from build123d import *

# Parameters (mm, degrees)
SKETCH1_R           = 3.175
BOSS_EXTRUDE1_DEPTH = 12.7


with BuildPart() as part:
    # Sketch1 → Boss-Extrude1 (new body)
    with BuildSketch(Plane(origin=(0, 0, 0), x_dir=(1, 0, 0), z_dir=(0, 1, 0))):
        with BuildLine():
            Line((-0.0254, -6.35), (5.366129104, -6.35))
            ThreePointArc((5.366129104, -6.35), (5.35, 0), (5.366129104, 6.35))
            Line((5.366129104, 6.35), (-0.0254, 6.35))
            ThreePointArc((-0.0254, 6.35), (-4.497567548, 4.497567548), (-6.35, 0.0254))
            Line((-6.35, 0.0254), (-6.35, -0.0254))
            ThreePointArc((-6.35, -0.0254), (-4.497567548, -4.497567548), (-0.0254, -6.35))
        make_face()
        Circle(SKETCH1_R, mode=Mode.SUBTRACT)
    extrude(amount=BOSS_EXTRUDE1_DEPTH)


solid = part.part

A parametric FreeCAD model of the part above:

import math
import FreeCAD as App
import Part
import Sketcher

V = App.Vector
Q = App.Units.Quantity

doc = App.newDocument("Part")
body = doc.addObject("PartDesign::Body", "Body")

# Sketch on XZ plane
sketch1 = doc.addObject("Sketcher::SketchObject", "Sketch")
body.addObject(sketch1)
sketch1.AttachmentSupport = (doc.XZ_Plane, [""])
sketch1.MapMode = "FlatFace"
sketch1.addGeometry([
    Part.LineSegment(V(-0.0254, 6.35, 0), V(5.366129, 6.35, 0)),  # 0
    Part.ArcOfCircle(Part.Circle(V(1255.350005, 0, 0), V(0, 0, 1), 1250.000005), math.radians(179.708936), math.radians(180.291064)),  # 1
    Part.LineSegment(V(5.366129, -6.35, 0), V(-0.0254, -6.35, 0)),  # 2
    Part.ArcOfCircle(Part.Circle(V(-0.0254, -0.0254, 0), V(0, 0, 1), 6.3246), math.radians(-180), math.radians(-90)),  # 3
    Part.LineSegment(V(-6.35, -0.0254, 0), V(-6.35, 0.0254, 0)),  # 4
    Part.ArcOfCircle(Part.Circle(V(-0.0254, 0.0254, 0), V(0, 0, 1), 6.3246), math.radians(90), math.radians(180)),  # 5
    Part.Circle(V(0, 0, 0), V(0, 0, 1), 3.175),  # 6
], False)
sketch1.addConstraint([
    Sketcher.Constraint("Coincident", 0, 2, 1, 1),
    Sketcher.Constraint("Coincident", 1, 2, 2, 1),
    Sketcher.Constraint("Tangent", 2, 2, 3, 2),
    Sketcher.Constraint("Tangent", 3, 1, 4, 1),
    Sketcher.Constraint("Tangent", 4, 2, 5, 2),
    Sketcher.Constraint("Tangent", 5, 1, 0, 1),
    Sketcher.Constraint("Horizontal", 0),
    Sketcher.Constraint("Horizontal", 2),
    Sketcher.Constraint("Vertical", 4),
    Sketcher.Constraint("Coincident", 6, 3, -1, 1),
    Sketcher.Constraint("Equal", 3, 5),
    Sketcher.Constraint("PointOnObject", 1, 3, -1),
    Sketcher.Constraint("Diameter", 6, Q("0.25 in")),
    Sketcher.Constraint("Radius", 3, Q("0.249 in")),
    Sketcher.Constraint("DistanceY", 2, 2, 0, 2, Q("0.5 in")),
    Sketcher.Constraint("DistanceY", -1, 1, 0, 2, Q("0.25 in")),
    Sketcher.Constraint("DistanceX", 3, 1, -1, 1, Q("0.25 in")),
    Sketcher.Constraint("Radius", 1, 1250.000005),
    Sketcher.Constraint("DistanceX", 0, 1, 0, 2, 5.391529),
])
pad1 = doc.addObject("PartDesign::Pad", "Pad")
body.addObject(pad1)
pad1.Profile = sketch1
pad1.Length = Q("0.5 in")
pad1.Reversed = True

doc.recompute()
